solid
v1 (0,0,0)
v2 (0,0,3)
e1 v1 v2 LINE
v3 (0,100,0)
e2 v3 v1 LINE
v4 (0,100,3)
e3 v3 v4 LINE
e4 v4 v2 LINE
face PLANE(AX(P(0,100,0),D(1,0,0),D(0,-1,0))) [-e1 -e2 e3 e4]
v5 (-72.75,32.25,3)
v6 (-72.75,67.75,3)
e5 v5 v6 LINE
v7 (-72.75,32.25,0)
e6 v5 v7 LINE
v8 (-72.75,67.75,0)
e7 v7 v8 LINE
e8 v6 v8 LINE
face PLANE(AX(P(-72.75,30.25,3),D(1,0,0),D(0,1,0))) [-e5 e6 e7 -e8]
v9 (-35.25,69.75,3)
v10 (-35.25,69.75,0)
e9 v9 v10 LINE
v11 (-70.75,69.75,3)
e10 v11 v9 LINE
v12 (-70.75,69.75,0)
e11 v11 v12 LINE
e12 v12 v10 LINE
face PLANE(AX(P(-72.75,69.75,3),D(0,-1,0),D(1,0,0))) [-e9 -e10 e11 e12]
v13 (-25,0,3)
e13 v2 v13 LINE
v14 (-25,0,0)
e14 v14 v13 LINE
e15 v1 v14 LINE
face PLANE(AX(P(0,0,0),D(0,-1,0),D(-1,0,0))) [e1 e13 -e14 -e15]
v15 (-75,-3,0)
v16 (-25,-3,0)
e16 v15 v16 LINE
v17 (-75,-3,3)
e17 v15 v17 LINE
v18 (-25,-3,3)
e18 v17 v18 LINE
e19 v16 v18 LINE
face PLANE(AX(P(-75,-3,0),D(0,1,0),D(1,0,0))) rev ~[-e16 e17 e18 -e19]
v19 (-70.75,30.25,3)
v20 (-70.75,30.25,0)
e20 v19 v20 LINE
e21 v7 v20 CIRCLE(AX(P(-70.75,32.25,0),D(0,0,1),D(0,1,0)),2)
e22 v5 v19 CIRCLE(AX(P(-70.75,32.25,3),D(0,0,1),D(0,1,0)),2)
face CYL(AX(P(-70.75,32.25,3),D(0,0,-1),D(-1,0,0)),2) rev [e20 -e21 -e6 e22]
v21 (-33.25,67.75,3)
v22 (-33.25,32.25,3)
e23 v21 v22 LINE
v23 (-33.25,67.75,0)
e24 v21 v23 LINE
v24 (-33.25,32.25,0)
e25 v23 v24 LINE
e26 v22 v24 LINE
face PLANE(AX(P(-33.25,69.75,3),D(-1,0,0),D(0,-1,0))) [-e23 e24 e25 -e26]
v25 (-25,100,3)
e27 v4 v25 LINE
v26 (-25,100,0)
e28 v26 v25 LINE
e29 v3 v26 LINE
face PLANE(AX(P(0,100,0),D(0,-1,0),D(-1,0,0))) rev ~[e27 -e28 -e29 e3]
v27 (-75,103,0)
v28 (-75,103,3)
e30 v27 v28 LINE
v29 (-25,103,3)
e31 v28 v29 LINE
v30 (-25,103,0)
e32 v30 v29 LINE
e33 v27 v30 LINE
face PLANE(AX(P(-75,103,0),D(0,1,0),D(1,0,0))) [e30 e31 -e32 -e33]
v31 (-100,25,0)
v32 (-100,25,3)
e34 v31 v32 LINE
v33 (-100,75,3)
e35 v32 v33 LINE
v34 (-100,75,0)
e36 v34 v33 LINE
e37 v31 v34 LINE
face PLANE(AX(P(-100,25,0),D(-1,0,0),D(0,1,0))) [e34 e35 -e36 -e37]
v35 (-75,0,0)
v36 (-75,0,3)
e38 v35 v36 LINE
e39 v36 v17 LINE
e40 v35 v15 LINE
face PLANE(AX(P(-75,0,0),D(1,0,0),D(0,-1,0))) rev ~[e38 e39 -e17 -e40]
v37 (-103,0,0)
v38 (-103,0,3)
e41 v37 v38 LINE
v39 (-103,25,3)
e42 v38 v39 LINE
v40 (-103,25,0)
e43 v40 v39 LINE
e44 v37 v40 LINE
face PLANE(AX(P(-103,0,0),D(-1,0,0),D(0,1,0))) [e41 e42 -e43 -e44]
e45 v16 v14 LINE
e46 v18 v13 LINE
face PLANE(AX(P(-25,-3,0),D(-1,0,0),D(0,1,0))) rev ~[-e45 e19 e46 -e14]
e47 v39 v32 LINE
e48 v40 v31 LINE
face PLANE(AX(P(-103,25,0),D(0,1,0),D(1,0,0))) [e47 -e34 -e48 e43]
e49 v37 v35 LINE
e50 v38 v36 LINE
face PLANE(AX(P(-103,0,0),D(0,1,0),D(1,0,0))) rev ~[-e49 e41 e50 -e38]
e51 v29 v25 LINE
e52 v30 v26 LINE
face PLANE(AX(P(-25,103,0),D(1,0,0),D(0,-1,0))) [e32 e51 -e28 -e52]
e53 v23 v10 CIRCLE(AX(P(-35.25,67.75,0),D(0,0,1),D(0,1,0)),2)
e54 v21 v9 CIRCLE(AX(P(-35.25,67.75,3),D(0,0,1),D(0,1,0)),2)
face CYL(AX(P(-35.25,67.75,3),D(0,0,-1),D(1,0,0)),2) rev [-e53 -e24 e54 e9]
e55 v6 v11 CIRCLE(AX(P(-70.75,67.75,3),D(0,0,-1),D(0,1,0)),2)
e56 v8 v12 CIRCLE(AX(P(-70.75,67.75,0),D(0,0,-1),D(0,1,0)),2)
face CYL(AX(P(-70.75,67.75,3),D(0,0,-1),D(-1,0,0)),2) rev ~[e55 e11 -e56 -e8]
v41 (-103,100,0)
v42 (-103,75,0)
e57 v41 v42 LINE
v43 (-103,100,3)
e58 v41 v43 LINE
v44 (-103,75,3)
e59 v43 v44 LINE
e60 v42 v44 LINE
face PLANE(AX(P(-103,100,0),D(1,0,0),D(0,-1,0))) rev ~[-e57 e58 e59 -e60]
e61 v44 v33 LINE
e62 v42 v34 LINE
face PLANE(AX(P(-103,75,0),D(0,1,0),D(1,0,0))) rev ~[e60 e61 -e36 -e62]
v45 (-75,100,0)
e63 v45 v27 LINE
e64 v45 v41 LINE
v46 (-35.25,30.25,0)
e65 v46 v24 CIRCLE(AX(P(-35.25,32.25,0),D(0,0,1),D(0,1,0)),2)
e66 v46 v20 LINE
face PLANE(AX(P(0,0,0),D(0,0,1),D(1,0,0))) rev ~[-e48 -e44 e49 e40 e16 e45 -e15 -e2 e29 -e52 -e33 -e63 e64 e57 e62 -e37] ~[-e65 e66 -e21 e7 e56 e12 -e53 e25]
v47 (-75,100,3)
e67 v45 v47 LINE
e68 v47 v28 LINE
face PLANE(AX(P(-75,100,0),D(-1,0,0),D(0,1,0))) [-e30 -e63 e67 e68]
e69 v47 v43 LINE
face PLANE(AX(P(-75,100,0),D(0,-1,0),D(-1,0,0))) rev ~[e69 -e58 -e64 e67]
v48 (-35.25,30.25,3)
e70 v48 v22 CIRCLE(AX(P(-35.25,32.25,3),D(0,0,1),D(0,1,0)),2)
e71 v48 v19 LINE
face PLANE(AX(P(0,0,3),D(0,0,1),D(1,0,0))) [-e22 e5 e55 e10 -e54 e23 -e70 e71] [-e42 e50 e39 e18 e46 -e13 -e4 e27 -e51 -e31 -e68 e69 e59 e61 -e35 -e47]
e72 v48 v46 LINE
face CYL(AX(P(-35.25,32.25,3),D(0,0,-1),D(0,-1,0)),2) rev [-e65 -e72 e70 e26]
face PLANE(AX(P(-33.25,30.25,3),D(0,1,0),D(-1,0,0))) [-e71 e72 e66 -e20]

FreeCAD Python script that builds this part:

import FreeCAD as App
import Part
import Sketcher
Q = App.Units.Quantity


def edges_at(feature, points):
    """Names of the edges that pass closest to the given points."""
    edges = feature.Shape.Edges
    near = lambda p: min(range(len(edges)), key=lambda i: edges[i].distToShape(Part.Vertex(*p))[0])
    return sorted({f"Edge{near(p) + 1}" for p in points})

doc = App.newDocument("Part")
params = doc.addObject("Spreadsheet::Sheet", "Params")
for row, (alias, value) in enumerate([
    ("sketch1_width", "25 mm"),
    ("sketch1_width2", "50 mm"),
    ("sketch1_width3", "3 mm"),
    ("pad1_length", "3 mm"),
    ("sketch2_width", "39.5 mm"),
    ("pocket1_length", "3 mm"),
    ("fillet_radius", "2 mm"),
], start=1):
    params.set(f"A{row}", alias)
    params.set(f"B{row}", "=" + value)
    params.setAlias(f"B{row}", alias)

body = doc.addObject("PartDesign::Body", "Body")

# Sketch on XY plane
sketch1 = doc.addObject("Sketcher::SketchObject", "Sketch")
body.addObject(sketch1)
sketch1.AttachmentSupport = (doc.XY_Plane, [""])
sketch1.MapMode = "FlatFace"
sketch1.addGeometry([
    Part.LineSegment(App.Vector(0, 0, 0), App.Vector(0, 100, 0)),  # 0
    Part.LineSegment(App.Vector(0, 100, 0), App.Vector(-25, 100, 0)),  # 1
    Part.LineSegment(App.Vector(-25, 100, 0), App.Vector(-25, 103, 0)),  # 2
    Part.LineSegment(App.Vector(-25, 103, 0), App.Vector(-75, 103, 0)),  # 3
    Part.LineSegment(App.Vector(-75, 103, 0), App.Vector(-75, 100, 0)),  # 4
    Part.LineSegment(App.Vector(-75, 100, 0), App.Vector(-103, 100, 0)),  # 5
    Part.LineSegment(App.Vector(-103, 100, 0), App.Vector(-103, 75, 0)),  # 6
    Part.LineSegment(App.Vector(-103, 75, 0), App.Vector(-100, 75, 0)),  # 7
    Part.LineSegment(App.Vector(-100, 75, 0), App.Vector(-100, 25, 0)),  # 8
    Part.LineSegment(App.Vector(-100, 25, 0), App.Vector(-103, 25, 0)),  # 9
    Part.LineSegment(App.Vector(-103, 25, 0), App.Vector(-103, 0, 0)),  # 10
    Part.LineSegment(App.Vector(-103, 0, 0), App.Vector(-75, 0, 0)),  # 11
    Part.LineSegment(App.Vector(-75, 0, 0), App.Vector(-75, -3, 0)),  # 12
    Part.LineSegment(App.Vector(-75, -3, 0), App.Vector(-25, -3, 0)),  # 13
    Part.LineSegment(App.Vector(-25, -3, 0), App.Vector(-25, 0, 0)),  # 14
    Part.LineSegment(App.Vector(-25, 0, 0), App.Vector(0, 0, 0)),  # 15
], False)
sketch1.addConstraint([
    Sketcher.Constraint("Coincident", 0, 2, 1, 1),
    Sketcher.Constraint("Coincident", 1, 2, 2, 1),
    Sketcher.Constraint("Coincident", 2, 2, 3, 1),
    Sketcher.Constraint("Coincident", 3, 2, 4, 1),
    Sketcher.Constraint("Coincident", 4, 2, 5, 1),
    Sketcher.Constraint("Coincident", 5, 2, 6, 1),
    Sketcher.Constraint("Coincident", 6, 2, 7, 1),
    Sketcher.Constraint("Coincident", 7, 2, 8, 1),
    Sketcher.Constraint("Coincident", 8, 2, 9, 1),
    Sketcher.Constraint("Coincident", 9, 2, 10, 1),
    Sketcher.Constraint("Coincident", 10, 2, 11, 1),
    Sketcher.Constraint("Coincident", 11, 2, 12, 1),
    Sketcher.Constraint("Coincident", 12, 2, 13, 1),
    Sketcher.Constraint("Coincident", 13, 2, 14, 1),
    Sketcher.Constraint("Coincident", 14, 2, 15, 1),
    Sketcher.Constraint("Coincident", 15, 2, 0, 1),
    Sketcher.Constraint("Vertical", 0),
    Sketcher.Constraint("Horizontal", 1),
    Sketcher.Constraint("Vertical", 2),
    Sketcher.Constraint("Horizontal", 3),
    Sketcher.Constraint("Vertical", 4),
    Sketcher.Constraint("Horizontal", 5),
    Sketcher.Constraint("Vertical", 6),
    Sketcher.Constraint("Horizontal", 7),
    Sketcher.Constraint("Vertical", 8),
    Sketcher.Constraint("Horizontal", 9),
    Sketcher.Constraint("Vertical", 10),
    Sketcher.Constraint("Horizontal", 11),
    Sketcher.Constraint("Vertical", 12),
    Sketcher.Constraint("Horizontal", 13),
    Sketcher.Constraint("Vertical", 14),
    Sketcher.Constraint("Horizontal", 15),
    Sketcher.Constraint("Coincident", 15, 2, -1, 1),
    Sketcher.Constraint("PointOnObject", 10, 2, -1),
    Sketcher.Constraint("Horizontal", 1, 2, 4, 2),
    Sketcher.Constraint("Vertical", 6, 2, 9, 2),
    Sketcher.Constraint("Vertical", 4, 2, 11, 2),
    Sketcher.Constraint("Vertical", 2, 2, 13, 2),
    Sketcher.Constraint("Equal", 9, 2),
    Sketcher.Constraint("Equal", 15, 6),
    Sketcher.Constraint("Equal", 13, 8),
    Sketcher.Constraint("Equal", 6, 10),
    Sketcher.Constraint("Equal", 4, 12),
    Sketcher.Constraint("DistanceX", 1, 2, 1, 1, Q("25 mm")),
    Sketcher.Constraint("DistanceX", 3, 2, 3, 1, Q("50 mm")),
    Sketcher.Constraint("DistanceX", 7, 1, 7, 2, Q("3 mm")),
    Sketcher.Constraint("DistanceX", 7, 2, -1, 1, Q("100 mm")),
])
sketch1.setExpression("Constraints[43]", "Params.sketch1_width")
sketch1.setExpression("Constraints[44]", "Params.sketch1_width2")
sketch1.setExpression("Constraints[45]", "Params.sketch1_width3")
pad1 = doc.addObject("PartDesign::Pad", "Pad")
body.addObject(pad1)
pad1.Profile = sketch1
pad1.setExpression("Length", "Params.pad1_length")

# Sketch on XY plane
sketch2 = doc.addObject("Sketcher::SketchObject", "Sketch001")
body.addObject(sketch2)
sketch2.AttachmentSupport = (doc.XY_Plane, [""])
sketch2.MapMode = "FlatFace"
sketch2.AttachmentOffset = App.Placement(App.Vector(0, 0, 3), App.Rotation())
sketch2.addGeometry([
    Part.LineSegment(App.Vector(-33, 70, 0), App.Vector(-73, 70, 0)),
    Part.LineSegment(App.Vector(-73, 70, 0), App.Vector(-73, 30, 0)),
    Part.LineSegment(App.Vector(-73, 30, 0), App.Vector(-33, 30, 0)),
    Part.LineSegment(App.Vector(-33, 30, 0), App.Vector(-33, 70, 0)),
], False)
sketch2.addConstraint([
    Sketcher.Constraint("Coincident", 0, 2, 1, 1),
    Sketcher.Constraint("Coincident", 1, 2, 2, 1),
    Sketcher.Constraint("Coincident", 2, 2, 3, 1),
    Sketcher.Constraint("Coincident", 3, 2, 0, 1),
    Sketcher.Constraint("Horizontal", 0),
    Sketcher.Constraint("Vertical", 1),
    Sketcher.Constraint("Horizontal", 2),
    Sketcher.Constraint("Vertical", 3),
    Sketcher.Constraint("Equal", 2, 1),
    Sketcher.Constraint("DistanceX", 0, 2, 0, 1, Q("39.5 mm")),
    Sketcher.Constraint("DistanceY", -1, 1, 1, 2, Q("30.25 mm")),
    Sketcher.Constraint("DistanceX", 0, 2, -1, 1, Q("72.75 mm")),
])
sketch2.setExpression("Constraints[9]", "Params.sketch2_width")
pocket1 = doc.addObject("PartDesign::Pocket", "Pocket")
body.addObject(pocket1)
pocket1.Profile = sketch2
pocket1.setExpression("Length", "Params.pocket1_length")
doc.recompute()

fillet = doc.addObject("PartDesign::Fillet", "Fillet")
body.addObject(fillet)
fillet.Base = (pocket1, edges_at(pocket1, [
    (-72.75, 69.75, 1.5),
    (-33.25, 69.75, 1.5),
    (-33.25, 30.25, 1.5),
    (-72.75, 30.25, 1.5),
]))
fillet.setExpression("Radius", "Params.fillet_radius")

doc.recompute()
